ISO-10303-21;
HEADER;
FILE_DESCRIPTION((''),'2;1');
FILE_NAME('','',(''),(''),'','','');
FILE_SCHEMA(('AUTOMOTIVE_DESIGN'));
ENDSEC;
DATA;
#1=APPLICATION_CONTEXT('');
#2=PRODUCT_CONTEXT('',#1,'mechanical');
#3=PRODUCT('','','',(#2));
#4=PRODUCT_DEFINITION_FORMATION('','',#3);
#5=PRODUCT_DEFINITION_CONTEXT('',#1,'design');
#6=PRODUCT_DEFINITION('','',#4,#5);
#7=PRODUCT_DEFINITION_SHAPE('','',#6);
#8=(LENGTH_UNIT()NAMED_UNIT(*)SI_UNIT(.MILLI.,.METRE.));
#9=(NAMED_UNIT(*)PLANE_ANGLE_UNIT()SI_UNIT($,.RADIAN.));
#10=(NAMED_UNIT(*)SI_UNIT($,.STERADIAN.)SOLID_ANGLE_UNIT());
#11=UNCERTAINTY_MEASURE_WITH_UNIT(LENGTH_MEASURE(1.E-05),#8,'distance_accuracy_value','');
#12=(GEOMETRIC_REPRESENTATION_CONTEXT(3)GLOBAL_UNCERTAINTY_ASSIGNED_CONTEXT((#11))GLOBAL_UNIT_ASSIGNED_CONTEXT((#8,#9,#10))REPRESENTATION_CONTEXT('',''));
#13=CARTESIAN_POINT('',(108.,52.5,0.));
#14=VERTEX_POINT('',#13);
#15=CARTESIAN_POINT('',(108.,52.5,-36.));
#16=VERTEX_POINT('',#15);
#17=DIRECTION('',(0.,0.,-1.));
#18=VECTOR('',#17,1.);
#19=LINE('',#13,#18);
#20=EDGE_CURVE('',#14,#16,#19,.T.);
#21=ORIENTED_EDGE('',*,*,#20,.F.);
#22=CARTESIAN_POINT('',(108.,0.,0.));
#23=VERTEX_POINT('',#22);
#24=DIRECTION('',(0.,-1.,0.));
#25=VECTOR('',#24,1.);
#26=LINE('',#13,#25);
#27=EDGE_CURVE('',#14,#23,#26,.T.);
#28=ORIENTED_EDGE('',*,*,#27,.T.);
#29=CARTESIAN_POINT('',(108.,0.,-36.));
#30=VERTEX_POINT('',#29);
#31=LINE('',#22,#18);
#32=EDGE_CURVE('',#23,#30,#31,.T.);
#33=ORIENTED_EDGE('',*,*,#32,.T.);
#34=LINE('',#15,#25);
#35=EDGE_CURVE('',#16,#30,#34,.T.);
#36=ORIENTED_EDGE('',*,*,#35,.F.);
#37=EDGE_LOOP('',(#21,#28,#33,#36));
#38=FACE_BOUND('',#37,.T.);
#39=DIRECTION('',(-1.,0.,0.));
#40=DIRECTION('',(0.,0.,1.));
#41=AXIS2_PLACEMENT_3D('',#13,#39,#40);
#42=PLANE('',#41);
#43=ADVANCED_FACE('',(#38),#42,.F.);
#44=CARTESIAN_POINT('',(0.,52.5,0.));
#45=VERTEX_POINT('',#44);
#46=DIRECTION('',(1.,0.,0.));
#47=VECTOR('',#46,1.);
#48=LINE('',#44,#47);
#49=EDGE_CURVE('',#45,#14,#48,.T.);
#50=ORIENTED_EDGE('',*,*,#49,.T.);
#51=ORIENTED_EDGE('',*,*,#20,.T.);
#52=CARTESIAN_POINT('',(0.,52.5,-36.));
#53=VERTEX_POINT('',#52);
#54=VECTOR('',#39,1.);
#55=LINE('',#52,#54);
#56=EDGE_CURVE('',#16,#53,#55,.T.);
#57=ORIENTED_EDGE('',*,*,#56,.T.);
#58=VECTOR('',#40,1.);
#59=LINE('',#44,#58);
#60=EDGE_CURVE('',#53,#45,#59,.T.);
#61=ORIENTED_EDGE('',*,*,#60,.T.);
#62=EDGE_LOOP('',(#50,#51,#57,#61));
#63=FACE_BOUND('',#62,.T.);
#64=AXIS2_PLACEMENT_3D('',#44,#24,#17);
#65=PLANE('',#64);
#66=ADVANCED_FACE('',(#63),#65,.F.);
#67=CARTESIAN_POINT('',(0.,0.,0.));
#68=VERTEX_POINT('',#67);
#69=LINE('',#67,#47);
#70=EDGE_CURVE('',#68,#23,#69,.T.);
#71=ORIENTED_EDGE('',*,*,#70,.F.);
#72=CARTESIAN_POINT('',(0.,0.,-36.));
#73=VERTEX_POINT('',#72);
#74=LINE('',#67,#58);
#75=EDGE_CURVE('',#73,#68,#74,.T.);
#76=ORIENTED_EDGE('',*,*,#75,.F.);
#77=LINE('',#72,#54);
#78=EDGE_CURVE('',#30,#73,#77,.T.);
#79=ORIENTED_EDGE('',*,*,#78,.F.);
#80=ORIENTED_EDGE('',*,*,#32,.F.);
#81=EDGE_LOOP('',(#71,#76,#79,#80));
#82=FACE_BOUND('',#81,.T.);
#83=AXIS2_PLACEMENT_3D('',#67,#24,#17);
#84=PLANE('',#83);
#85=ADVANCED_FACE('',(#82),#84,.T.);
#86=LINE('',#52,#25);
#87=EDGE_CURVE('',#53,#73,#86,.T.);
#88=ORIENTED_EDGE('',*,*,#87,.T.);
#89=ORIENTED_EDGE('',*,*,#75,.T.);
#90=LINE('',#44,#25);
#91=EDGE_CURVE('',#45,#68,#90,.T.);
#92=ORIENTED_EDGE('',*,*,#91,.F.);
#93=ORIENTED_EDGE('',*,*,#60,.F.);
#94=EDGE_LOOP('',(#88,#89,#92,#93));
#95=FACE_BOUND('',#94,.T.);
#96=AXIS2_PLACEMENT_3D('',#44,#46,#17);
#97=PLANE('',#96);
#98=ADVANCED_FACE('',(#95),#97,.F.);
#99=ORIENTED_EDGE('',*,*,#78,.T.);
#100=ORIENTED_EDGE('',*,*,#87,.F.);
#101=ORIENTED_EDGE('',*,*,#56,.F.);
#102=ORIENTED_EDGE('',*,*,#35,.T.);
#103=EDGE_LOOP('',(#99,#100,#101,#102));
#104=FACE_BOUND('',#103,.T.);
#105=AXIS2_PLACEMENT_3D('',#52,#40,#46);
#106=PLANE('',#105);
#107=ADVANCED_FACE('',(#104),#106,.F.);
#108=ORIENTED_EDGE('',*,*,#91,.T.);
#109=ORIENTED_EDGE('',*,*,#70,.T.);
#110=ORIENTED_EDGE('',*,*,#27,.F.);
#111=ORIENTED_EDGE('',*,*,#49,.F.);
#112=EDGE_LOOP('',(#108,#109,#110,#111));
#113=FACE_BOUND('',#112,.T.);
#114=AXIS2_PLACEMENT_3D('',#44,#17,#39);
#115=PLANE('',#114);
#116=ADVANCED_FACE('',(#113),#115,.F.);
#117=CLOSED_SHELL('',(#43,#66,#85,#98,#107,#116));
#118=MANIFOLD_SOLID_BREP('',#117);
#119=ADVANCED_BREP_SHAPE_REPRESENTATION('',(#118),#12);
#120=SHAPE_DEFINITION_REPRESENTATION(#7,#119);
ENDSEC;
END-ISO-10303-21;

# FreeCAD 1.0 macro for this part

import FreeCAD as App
import Part
import Sketcher
from FreeCAD import Vector
Q = App.Units.Quantity


def add_polygon(sketch, points):
    """Adds a closed chain of lines whose ends are joined by coincident constraints."""
    first, n = sketch.GeometryCount, len(points)
    for a, b in zip(points, points[1:] + points[:1]):
        sketch.addGeometry(Part.LineSegment(App.Vector(*a, 0), App.Vector(*b, 0)), False)
    for i in range(n):
        sketch.addConstraint(Sketcher.Constraint("Coincident", first + i, 2, first + (i + 1) % n, 1))

doc = App.newDocument("Part")
body = doc.addObject("PartDesign::Body", "Body")

# Sketch on XZ plane
sketch1 = body.newObject("Sketcher::SketchObject", "Sketch")
sketch1.AttachmentSupport = (doc.getObject("XZ_Plane"), [""])
sketch1.MapMode = "FlatFace"
add_polygon(sketch1, [(0, -36), (0, 0), (108, 0), (108, -36)])  # lines 0-3
sketch1.addConstraint([
    Sketcher.Constraint("Vertical", 0),
    Sketcher.Constraint("Horizontal", 1),
    Sketcher.Constraint("Vertical", 2),
    Sketcher.Constraint("Horizontal", 3),
    Sketcher.Constraint("Coincident", 0, 2, -1, 1),
    Sketcher.Constraint("DistanceX", 1, 1, 1, 2, Q("108 mm")),
    Sketcher.Constraint("DistanceY", 0, 1, 0, 2, Q("36 mm")),
])
pad1 = body.newObject("PartDesign::Pad", "Pad")
pad1.Profile = sketch1
pad1.Length = 52.5
pad1.Reversed = True

doc.recompute()
